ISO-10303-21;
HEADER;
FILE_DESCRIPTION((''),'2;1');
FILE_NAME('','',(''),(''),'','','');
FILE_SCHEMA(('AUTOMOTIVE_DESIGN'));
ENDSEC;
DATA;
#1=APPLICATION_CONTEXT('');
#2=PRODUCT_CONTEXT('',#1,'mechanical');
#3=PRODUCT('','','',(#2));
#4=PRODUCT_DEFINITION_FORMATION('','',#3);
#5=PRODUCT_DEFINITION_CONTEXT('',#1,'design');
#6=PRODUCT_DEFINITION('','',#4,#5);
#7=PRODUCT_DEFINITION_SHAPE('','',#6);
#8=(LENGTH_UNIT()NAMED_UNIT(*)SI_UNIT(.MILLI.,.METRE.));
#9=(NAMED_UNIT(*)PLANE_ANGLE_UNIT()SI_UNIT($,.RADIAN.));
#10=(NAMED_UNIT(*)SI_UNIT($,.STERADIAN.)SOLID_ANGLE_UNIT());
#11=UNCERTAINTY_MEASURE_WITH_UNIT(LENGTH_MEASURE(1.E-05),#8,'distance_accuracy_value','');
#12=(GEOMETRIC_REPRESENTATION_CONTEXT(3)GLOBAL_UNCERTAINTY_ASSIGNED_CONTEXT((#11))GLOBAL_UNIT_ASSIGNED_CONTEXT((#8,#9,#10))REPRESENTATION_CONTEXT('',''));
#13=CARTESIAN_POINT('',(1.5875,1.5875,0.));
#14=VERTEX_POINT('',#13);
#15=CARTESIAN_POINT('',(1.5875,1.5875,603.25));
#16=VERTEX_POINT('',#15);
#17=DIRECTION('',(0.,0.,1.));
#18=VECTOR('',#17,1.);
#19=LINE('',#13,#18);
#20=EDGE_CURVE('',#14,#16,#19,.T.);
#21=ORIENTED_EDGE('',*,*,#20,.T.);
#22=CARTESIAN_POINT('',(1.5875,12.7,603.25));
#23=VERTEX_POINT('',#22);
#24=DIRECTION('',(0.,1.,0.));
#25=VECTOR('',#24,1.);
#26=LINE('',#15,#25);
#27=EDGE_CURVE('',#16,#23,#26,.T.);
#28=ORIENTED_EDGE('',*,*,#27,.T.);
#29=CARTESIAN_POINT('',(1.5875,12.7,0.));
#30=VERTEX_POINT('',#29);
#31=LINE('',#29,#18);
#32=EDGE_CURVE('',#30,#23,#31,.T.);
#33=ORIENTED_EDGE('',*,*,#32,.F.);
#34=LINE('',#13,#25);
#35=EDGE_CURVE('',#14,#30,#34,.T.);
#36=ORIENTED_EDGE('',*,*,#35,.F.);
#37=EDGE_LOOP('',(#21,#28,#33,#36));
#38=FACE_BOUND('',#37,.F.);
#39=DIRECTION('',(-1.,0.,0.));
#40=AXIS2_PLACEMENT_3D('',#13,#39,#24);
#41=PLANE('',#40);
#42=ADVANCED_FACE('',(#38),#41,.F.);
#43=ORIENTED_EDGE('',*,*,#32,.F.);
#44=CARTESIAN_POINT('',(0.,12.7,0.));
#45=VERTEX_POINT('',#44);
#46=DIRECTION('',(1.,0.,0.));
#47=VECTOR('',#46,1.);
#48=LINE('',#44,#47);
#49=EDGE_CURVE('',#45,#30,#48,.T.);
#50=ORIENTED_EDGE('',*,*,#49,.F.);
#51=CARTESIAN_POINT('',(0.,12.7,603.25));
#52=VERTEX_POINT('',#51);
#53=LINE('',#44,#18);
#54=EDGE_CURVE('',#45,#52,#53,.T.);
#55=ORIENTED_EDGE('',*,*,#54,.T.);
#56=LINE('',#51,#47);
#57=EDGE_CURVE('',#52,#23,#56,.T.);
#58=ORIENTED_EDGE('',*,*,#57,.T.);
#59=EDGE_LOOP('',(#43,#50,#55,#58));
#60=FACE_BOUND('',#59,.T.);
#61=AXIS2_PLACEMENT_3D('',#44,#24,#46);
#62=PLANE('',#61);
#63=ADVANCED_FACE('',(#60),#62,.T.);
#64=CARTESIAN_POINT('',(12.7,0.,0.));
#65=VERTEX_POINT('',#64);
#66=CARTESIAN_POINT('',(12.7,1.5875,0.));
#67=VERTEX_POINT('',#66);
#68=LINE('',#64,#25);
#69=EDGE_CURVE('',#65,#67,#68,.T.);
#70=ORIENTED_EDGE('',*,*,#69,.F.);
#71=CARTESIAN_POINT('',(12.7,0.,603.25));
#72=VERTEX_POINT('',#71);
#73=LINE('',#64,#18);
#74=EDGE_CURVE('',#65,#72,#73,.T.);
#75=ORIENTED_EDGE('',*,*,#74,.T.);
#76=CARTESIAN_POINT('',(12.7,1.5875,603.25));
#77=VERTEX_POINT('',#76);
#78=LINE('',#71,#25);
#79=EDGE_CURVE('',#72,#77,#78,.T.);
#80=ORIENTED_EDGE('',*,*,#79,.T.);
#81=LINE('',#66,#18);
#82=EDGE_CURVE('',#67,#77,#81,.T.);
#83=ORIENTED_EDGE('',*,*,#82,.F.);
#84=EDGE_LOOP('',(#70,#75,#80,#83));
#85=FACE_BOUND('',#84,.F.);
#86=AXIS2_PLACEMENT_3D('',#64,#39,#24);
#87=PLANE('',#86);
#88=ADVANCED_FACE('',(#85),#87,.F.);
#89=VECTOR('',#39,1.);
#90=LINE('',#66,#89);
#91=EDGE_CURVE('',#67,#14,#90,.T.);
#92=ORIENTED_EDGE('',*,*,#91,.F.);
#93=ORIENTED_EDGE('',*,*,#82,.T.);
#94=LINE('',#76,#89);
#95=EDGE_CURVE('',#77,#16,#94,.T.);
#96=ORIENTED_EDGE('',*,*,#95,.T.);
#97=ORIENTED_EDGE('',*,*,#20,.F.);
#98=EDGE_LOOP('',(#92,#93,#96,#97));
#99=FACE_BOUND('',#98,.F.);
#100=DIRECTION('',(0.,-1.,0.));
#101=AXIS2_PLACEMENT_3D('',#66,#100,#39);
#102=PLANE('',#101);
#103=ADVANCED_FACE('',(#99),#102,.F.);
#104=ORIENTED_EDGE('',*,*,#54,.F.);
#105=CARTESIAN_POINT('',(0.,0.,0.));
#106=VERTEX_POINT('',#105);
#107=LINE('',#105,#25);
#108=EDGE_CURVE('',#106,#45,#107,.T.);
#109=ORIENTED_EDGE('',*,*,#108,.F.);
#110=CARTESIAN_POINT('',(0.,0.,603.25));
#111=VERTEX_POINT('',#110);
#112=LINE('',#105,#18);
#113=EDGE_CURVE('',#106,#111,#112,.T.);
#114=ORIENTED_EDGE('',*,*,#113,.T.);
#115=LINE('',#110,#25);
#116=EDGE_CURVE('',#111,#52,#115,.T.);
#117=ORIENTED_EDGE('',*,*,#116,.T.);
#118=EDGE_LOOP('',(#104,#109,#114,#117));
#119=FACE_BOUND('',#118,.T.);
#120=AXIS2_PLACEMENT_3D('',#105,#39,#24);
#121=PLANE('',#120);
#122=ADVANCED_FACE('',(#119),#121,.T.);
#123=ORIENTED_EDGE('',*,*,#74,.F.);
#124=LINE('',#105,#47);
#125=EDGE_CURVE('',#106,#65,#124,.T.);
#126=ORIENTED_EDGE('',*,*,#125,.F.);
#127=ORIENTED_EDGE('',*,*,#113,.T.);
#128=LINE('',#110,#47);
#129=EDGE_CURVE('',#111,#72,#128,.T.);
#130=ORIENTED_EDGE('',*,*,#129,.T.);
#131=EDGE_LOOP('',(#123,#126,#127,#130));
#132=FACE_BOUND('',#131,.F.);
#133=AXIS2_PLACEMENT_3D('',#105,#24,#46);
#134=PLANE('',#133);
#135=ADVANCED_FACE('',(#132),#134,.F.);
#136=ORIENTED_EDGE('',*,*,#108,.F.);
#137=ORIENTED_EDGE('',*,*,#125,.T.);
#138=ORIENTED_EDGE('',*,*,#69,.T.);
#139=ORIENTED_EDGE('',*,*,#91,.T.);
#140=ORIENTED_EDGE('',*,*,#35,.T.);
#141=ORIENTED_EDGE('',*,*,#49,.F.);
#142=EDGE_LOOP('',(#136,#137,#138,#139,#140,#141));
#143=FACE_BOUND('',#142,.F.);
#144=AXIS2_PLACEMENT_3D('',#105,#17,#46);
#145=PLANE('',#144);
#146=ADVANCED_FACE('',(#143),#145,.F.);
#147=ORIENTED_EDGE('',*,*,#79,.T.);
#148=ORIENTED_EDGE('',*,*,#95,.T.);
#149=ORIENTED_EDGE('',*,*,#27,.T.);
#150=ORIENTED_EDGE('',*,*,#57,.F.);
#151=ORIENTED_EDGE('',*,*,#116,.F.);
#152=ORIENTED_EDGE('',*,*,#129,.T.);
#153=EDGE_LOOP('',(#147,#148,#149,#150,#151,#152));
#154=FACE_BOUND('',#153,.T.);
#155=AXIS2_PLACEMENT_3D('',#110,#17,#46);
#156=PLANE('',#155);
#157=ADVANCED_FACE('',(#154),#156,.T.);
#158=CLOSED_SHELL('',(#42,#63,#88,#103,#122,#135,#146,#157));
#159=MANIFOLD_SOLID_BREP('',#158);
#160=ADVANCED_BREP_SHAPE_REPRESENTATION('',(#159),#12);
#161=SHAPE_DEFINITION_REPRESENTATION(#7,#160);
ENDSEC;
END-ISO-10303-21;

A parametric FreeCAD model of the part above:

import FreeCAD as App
import Part
import Sketcher

V = App.Vector
Q = App.Units.Quantity


def add_polygon(sketch, points):
    """Adds a closed chain of lines whose ends are joined by coincident constraints."""
    first, n = sketch.GeometryCount, len(points)
    for a, b in zip(points, points[1:] + points[:1]):
        sketch.addGeometry(Part.LineSegment(App.Vector(*a, 0), App.Vector(*b, 0)), False)
    for i in range(n):
        sketch.addConstraint(Sketcher.Constraint("Coincident", first + i, 2, first + (i + 1) % n, 1))

doc = App.newDocument("Part")
body = doc.addObject("PartDesign::Body", "Body")

# Sketch on XY plane
sketch1 = doc.addObject("Sketcher::SketchObject", "Sketch")
body.addObject(sketch1)
sketch1.AttachmentSupport = (doc.XY_Plane, [""])
sketch1.MapMode = "FlatFace"
add_polygon(sketch1, [(0, 12.7), (0, 0), (12.7, 0), (12.7, 1.6), (1.6, 1.6), (1.6, 12.7)])  # lines 0-5
sketch1.addConstraint([
    Sketcher.Constraint("Vertical", 0),
    Sketcher.Constraint("Horizontal", 1),
    Sketcher.Constraint("Vertical", 2),
    Sketcher.Constraint("Horizontal", 3),
    Sketcher.Constraint("Vertical", 4),
    Sketcher.Constraint("Horizontal", 5),
    Sketcher.Constraint("Coincident", 0, 2, -1, 1),
    Sketcher.Constraint("Equal", 1, 0),
    Sketcher.Constraint("Equal", 5, 2),
    Sketcher.Constraint("DistanceX", 1, 1, 1, 2, Q("0.5 in")),
    Sketcher.Constraint("DistanceX", 5, 2, 5, 1, Q("0.0625 in")),
])
pad1 = doc.addObject("PartDesign::Pad", "Pad")
body.addObject(pad1)
pad1.Profile = sketch1
pad1.Length = Q("23.75 in")

doc.recompute()
